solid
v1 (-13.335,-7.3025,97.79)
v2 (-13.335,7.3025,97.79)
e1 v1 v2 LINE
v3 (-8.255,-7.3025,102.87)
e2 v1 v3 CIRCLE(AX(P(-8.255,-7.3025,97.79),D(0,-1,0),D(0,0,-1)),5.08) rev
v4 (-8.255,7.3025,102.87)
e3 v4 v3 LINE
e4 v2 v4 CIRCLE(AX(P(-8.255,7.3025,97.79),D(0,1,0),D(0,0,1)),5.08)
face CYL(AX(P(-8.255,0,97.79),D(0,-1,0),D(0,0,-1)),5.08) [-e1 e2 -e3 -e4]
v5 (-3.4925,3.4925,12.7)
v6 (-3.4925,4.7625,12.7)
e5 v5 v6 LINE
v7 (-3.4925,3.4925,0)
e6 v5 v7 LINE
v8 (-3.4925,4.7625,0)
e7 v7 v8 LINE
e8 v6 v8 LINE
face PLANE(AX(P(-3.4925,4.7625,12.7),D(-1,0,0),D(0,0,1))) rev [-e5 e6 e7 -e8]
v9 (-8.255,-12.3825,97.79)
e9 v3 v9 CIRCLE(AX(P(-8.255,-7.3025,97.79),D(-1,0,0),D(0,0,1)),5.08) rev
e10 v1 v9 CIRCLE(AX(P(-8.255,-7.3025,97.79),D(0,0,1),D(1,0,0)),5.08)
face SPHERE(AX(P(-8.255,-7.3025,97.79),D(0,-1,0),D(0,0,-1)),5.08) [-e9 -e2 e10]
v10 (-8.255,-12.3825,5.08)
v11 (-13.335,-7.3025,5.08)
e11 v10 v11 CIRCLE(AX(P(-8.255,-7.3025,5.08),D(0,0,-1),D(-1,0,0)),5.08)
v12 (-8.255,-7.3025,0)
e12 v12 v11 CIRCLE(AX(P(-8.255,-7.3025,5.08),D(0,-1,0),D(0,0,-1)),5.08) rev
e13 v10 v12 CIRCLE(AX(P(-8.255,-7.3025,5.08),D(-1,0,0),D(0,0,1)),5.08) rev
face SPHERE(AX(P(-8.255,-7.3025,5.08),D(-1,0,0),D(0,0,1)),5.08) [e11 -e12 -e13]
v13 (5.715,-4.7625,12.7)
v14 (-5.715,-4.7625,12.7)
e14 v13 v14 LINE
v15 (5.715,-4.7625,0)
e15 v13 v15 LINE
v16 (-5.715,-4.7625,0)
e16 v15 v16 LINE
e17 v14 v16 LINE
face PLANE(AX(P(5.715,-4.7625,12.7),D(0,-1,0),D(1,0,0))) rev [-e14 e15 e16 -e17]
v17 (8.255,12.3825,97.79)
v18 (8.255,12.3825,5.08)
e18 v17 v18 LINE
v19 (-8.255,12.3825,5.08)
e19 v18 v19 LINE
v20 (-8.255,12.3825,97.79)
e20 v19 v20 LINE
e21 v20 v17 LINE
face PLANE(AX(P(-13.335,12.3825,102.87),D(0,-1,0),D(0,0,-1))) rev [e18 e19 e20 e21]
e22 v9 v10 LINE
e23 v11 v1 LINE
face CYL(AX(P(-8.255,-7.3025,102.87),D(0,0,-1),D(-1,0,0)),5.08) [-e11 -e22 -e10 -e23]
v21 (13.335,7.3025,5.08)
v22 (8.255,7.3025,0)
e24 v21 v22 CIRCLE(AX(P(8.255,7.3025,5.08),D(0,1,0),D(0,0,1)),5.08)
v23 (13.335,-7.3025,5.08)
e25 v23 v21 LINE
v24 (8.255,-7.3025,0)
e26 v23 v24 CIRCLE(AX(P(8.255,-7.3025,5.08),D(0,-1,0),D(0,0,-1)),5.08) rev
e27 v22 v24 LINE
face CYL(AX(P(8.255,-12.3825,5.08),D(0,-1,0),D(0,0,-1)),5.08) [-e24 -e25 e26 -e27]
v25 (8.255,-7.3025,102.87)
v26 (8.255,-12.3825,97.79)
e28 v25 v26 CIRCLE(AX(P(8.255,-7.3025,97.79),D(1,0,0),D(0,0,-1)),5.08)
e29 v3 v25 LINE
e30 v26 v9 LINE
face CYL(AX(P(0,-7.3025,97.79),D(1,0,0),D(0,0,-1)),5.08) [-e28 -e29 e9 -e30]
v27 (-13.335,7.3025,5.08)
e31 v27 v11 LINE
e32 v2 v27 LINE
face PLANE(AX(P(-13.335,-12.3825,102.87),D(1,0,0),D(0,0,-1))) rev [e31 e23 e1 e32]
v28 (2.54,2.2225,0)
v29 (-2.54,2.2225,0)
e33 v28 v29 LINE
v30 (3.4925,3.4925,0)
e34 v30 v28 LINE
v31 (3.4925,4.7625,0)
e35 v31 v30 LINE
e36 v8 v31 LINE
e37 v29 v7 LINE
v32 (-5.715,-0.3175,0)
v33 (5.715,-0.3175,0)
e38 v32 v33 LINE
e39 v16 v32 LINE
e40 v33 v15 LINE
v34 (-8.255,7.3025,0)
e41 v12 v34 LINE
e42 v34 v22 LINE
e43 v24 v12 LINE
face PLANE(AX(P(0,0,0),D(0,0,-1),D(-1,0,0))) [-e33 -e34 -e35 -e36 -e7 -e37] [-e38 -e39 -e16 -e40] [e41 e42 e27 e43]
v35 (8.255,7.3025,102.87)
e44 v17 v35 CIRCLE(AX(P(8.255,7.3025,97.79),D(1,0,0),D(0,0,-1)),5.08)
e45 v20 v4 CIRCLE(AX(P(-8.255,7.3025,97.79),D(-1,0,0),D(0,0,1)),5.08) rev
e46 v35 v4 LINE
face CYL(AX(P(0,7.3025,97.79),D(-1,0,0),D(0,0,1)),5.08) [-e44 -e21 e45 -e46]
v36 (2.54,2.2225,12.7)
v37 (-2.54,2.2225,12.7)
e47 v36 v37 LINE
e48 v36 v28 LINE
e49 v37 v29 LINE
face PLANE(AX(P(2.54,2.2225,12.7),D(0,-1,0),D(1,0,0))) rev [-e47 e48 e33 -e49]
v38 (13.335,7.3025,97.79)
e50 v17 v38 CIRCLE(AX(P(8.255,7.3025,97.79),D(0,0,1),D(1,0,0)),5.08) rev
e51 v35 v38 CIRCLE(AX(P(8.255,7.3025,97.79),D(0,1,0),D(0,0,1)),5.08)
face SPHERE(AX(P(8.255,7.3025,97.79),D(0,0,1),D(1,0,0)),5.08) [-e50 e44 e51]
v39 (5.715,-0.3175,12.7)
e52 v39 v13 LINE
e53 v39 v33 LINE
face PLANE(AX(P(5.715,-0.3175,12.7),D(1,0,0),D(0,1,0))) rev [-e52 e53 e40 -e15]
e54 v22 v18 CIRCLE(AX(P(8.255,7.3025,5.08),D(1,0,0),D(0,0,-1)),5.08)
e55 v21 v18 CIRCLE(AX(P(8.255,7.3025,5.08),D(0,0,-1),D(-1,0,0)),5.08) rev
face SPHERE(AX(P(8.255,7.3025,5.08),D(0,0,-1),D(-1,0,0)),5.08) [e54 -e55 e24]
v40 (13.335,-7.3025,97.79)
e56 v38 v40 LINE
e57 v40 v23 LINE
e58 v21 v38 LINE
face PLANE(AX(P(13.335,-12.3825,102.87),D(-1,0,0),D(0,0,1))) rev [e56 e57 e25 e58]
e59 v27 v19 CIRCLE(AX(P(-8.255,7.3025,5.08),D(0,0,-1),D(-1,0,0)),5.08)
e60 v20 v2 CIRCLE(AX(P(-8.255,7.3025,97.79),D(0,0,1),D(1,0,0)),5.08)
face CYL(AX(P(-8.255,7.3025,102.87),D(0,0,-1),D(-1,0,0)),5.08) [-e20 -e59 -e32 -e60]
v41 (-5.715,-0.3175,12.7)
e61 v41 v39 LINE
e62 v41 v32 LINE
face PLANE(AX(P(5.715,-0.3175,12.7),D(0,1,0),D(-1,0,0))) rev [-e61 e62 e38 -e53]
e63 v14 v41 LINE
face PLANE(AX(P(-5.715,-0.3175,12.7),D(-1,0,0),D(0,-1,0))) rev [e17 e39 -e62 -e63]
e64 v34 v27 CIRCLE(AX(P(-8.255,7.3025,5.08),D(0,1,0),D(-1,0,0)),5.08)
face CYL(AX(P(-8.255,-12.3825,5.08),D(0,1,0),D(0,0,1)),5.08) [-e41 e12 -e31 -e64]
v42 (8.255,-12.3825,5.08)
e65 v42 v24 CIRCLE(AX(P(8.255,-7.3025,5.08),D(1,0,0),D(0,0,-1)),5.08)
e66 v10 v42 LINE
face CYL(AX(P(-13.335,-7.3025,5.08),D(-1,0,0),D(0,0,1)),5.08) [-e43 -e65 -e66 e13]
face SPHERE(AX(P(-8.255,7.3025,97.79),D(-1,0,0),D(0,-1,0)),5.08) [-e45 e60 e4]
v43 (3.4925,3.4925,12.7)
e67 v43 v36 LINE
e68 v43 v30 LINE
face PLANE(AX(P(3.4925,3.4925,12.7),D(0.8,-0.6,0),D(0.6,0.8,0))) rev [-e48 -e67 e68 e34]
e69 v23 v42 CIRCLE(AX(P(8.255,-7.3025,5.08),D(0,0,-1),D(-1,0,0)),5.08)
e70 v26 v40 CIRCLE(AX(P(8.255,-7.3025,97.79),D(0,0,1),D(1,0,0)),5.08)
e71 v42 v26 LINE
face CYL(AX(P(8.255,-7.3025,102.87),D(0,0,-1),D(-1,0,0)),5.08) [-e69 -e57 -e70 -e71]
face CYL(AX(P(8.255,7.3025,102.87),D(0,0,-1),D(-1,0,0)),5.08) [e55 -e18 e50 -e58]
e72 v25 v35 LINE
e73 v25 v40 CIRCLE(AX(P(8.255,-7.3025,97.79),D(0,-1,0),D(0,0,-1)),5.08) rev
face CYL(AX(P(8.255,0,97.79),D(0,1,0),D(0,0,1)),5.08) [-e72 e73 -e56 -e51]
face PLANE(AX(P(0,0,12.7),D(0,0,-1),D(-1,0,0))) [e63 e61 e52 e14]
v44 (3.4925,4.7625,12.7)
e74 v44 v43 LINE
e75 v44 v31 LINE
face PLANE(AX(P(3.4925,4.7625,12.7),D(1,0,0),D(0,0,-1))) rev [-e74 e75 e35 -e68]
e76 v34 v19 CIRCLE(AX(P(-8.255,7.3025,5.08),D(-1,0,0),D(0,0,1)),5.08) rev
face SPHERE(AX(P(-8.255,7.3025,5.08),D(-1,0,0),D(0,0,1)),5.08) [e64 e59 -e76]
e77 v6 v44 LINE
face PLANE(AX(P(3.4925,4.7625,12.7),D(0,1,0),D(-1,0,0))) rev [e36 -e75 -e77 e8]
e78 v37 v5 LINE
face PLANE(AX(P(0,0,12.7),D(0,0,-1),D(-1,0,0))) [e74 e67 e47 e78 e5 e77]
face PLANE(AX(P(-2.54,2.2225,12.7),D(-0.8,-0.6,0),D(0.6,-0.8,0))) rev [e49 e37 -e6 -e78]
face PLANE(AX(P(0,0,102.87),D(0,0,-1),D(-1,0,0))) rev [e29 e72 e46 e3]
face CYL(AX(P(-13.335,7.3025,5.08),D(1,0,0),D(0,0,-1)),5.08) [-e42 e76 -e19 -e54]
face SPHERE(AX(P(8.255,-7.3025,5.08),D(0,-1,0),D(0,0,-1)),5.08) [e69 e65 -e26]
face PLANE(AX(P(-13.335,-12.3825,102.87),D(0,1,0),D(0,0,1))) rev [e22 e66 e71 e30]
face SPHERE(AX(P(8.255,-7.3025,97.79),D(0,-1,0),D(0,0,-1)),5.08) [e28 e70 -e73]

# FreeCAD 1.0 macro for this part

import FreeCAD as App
import Part
import Sketcher

V = App.Vector
Q = App.Units.Quantity


def add_polygon(sketch, points):
    """Adds a closed chain of lines whose ends are joined by coincident constraints."""
    first, n = sketch.GeometryCount, len(points)
    for a, b in zip(points, points[1:] + points[:1]):
        sketch.addGeometry(Part.LineSegment(App.Vector(*a, 0), App.Vector(*b, 0)), False)
    for i in range(n):
        sketch.addConstraint(Sketcher.Constraint("Coincident", first + i, 2, first + (i + 1) % n, 1))

doc = App.newDocument("Part")
params = doc.addObject("Spreadsheet::Sheet", "Params")
for row, (alias, value) in enumerate([
    ("sketch1_width", "1.05 in"),
    ("sketch1_height", "0.975 in"),
    ("pad1_length", "4.05 in"),
    ("fillet_radius", "0.2 in"),
    ("sketch2_width", "0.2 in"),
    ("sketch2_width2", "0.45 in"),
    ("sketch2_height", "0.05 in"),
    ("sketch2_width3", "0.275 in"),
    ("sketch2_height2", "0.175 in"),
    ("pocket1_length", "0.5 in"),
], start=1):
    params.set(f"A{row}", alias)
    params.set(f"B{row}", "=" + value)
    params.setAlias(f"B{row}", alias)

body = doc.addObject("PartDesign::Body", "Body")

# Sketch on XY plane
sketch1 = doc.addObject("Sketcher::SketchObject", "Sketch")
body.addObject(sketch1)
sketch1.AttachmentSupport = (doc.XY_Plane, [""])
sketch1.MapMode = "FlatFace"
add_polygon(sketch1, [(-13, 12), (-13, -12), (13, -12), (13, 12)])  # lines 0-3
sketch1.addConstraint(Sketcher.Constraint("Vertical", 0))
sketch1.addConstraint(Sketcher.Constraint("Horizontal", 1))
sketch1.addConstraint(Sketcher.Constraint("Vertical", 2))
sketch1.addConstraint(Sketcher.Constraint("Horizontal", 3))
sketch1.addConstraint(Sketcher.Constraint("Symmetric", 0, 2, 2, 2, -1, 1))
sketch1.addConstraint(Sketcher.Constraint("DistanceX", 1, 1, 1, 2, Q("1.05 in")))
sketch1.addConstraint(Sketcher.Constraint("DistanceY", 0, 2, 0, 1, Q("0.975 in")))
sketch1.setExpression("Constraints[9]", "Params.sketch1_width")
sketch1.setExpression("Constraints[10]", "Params.sketch1_height")
pad1 = doc.addObject("PartDesign::Pad", "Pad")
body.addObject(pad1)
pad1.Profile = sketch1
pad1.setExpression("Length", "Params.pad1_length")
doc.recompute()

fillet = doc.addObject("PartDesign::Fillet", "Fillet")
body.addObject(fillet)
fillet.Base = (pad1, ["Edge1"])
fillet.UseAllEdges = True
fillet.setExpression("Radius", "Params.fillet_radius")

# Sketch on XY plane
sketch2 = doc.addObject("Sketcher::SketchObject", "Sketch001")
body.addObject(sketch2)
sketch2.AttachmentSupport = (doc.XY_Plane, [""])
sketch2.MapMode = "FlatFace"
add_polygon(sketch2, [(5.7, -0.3), (5.7, -4.8), (-5.7, -4.8), (-5.7, -0.3)])  # lines 0-3
add_polygon(sketch2, [(2.5, 2.2), (-2.5, 2.2), (-3.5, 3.5), (-3.5, 4.8), (3.5, 4.8), (3.5, 3.5)])  # lines 4-9
sketch2.addConstraint(Sketcher.Constraint("Vertical", 0))
sketch2.addConstraint(Sketcher.Constraint("Horizontal", 1))
sketch2.addConstraint(Sketcher.Constraint("Vertical", 2))
sketch2.addConstraint(Sketcher.Constraint("Horizontal", 3))
sketch2.addConstraint(Sketcher.Constraint("Horizontal", 4))
sketch2.addConstraint(Sketcher.Constraint("Vertical", 6))
sketch2.addConstraint(Sketcher.Constraint("Horizontal", 7))
sketch2.addConstraint(Sketcher.Constraint("Vertical", 8))
sketch2.addConstraint(Sketcher.Constraint("Symmetric", 5, 2, 8, 2, -2))
sketch2.addConstraint(Sketcher.Constraint("Equal", 5, 9))
sketch2.addConstraint(Sketcher.Constraint("DistanceX", 4, 2, 4, 1, Q("0.2 in")))
sketch2.addConstraint(Sketcher.Constraint("DistanceX", 1, 2, 1, 1, Q("0.45 in")))
sketch2.addConstraint(Sketcher.Constraint("DistanceY", 6, 1, 6, 2, Q("0.05 in")))
sketch2.addConstraint(Sketcher.Constraint("DistanceY", 2, 2, 4, 2, Q("0.1 in")))
sketch2.addConstraint(Sketcher.Constraint("DistanceY", 4, 2, 6, 2, Q("0.1 in")))
sketch2.addConstraint(Sketcher.Constraint("DistanceX", 7, 1, 7, 2, Q("0.275 in")))
sketch2.addConstraint(Sketcher.Constraint("DistanceY", 0, 2, 0, 1, Q("0.175 in")))
sketch2.addConstraint(Sketcher.Constraint("DistanceX", -1, 1, 0, 2, Q("0.225 in")))
sketch2.addConstraint(Sketcher.Constraint("DistanceY", 0, 2, -1, 1, Q("0.1875 in")))
sketch2.setExpression("Constraints[20]", "Params.sketch2_width")
sketch2.setExpression("Constraints[21]", "Params.sketch2_width2")
sketch2.setExpression("Constraints[22]", "Params.sketch2_height")
sketch2.setExpression("Constraints[25]", "Params.sketch2_width3")
sketch2.setExpression("Constraints[26]", "Params.sketch2_height2")
pocket1 = doc.addObject("PartDesign::Pocket", "Pocket")
body.addObject(pocket1)
pocket1.Profile = sketch2
pocket1.setExpression("Length", "Params.pocket1_length")
pocket1.Reversed = True

doc.recompute()
